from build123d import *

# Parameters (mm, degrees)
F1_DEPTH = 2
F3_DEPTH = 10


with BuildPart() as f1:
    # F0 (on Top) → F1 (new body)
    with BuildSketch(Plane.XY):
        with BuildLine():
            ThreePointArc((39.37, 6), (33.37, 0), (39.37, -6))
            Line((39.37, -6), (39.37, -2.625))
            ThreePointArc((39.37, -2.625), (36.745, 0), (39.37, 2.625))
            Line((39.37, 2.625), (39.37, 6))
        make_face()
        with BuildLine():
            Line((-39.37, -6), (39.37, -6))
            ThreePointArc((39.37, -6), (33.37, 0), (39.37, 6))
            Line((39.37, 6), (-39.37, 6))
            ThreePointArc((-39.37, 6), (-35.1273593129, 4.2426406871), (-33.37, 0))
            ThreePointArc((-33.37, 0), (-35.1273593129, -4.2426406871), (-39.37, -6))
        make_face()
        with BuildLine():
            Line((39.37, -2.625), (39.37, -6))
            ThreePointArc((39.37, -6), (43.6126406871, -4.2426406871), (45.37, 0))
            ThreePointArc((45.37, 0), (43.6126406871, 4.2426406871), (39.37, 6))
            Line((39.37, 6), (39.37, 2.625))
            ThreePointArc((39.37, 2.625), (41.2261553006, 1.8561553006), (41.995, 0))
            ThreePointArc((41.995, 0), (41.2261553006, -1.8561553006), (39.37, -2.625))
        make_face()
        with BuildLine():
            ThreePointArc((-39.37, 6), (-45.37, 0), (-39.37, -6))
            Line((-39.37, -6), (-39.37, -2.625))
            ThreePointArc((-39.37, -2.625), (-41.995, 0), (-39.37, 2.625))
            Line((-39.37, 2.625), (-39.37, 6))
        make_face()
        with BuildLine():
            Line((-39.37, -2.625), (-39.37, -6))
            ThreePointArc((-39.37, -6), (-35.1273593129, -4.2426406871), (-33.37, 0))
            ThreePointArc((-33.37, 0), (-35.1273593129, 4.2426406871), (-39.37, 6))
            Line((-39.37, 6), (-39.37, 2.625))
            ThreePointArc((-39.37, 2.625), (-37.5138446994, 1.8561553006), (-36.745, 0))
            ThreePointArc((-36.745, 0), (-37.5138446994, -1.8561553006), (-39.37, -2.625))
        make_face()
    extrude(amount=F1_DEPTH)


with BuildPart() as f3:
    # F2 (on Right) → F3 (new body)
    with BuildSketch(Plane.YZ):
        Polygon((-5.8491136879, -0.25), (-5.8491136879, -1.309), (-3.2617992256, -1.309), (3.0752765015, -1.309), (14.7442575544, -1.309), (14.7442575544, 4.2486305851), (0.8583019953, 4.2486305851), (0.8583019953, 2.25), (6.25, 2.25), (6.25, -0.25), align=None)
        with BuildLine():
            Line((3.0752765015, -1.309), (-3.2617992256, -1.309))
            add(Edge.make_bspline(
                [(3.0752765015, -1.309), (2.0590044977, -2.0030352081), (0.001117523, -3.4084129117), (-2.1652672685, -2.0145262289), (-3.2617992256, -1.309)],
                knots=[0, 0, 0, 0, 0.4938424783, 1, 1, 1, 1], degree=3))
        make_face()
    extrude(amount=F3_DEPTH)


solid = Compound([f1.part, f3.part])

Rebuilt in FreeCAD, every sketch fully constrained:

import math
import FreeCAD as App
import Part
import Sketcher
from FreeCAD import Vector

doc = App.newDocument("Part")
params = doc.addObject("Spreadsheet::Sheet", "Params")
for row, (alias, value) in enumerate([
    ("sketch1_radius", "6 mm"),
    ("sketch1_width", "78.74 mm"),
    ("pad1_length", "2 mm"),
    ("sketch2_height", "2.5 mm"),
    ("pad2_length", "10 mm"),
], start=1):
    params.set(f"A{row}", alias)
    params.set(f"B{row}", "=" + value)
    params.setAlias(f"B{row}", alias)

body = doc.addObject("PartDesign::Body", "Body")

# Sketch on XY plane
sketch1 = body.newObject("Sketcher::SketchObject", "Sketch")
sketch1.AttachmentSupport = (doc.getObject("XY_Plane"), [""])
sketch1.MapMode = "FlatFace"
sketch1.addGeometry(Part.LineSegment(Vector(39.4, 6, 0), Vector(-39.4, 6, 0)), False)
sketch1.addGeometry(Part.ArcOfCircle(Part.Circle(Vector(-39.4, 0, 0), Vector(0, 0, 1), 6), math.radians(90), math.radians(270)), False)
sketch1.addGeometry(Part.LineSegment(Vector(-39.4, -6, 0), Vector(39.4, -6, 0)), False)
sketch1.addGeometry(Part.ArcOfCircle(Part.Circle(Vector(39.4, 0, 0), Vector(0, 0, 1), 6), math.radians(-90), math.radians(0)), False)
sketch1.addGeometry(Part.ArcOfCircle(Part.Circle(Vector(39.4, 0, 0), Vector(0, 0, 1), 6), math.radians(0), math.radians(90)), False)
sketch1.addGeometry(Part.ArcOfCircle(Part.Circle(Vector(39.4, 0, 0), Vector(0, 0, 1), 2.6), math.radians(90), math.radians(270)), False)
sketch1.addGeometry(Part.ArcOfCircle(Part.Circle(Vector(39.4, 0, 0), Vector(0, 0, 1), 2.6), math.radians(0), math.radians(90)), False)
sketch1.addGeometry(Part.ArcOfCircle(Part.Circle(Vector(39.4, 0, 0), Vector(0, 0, 1), 2.6), math.radians(-90), math.radians(0)), False)
sketch1.addGeometry(Part.ArcOfCircle(Part.Circle(Vector(-39.4, 0, 0), Vector(0, 0, 1), 2.6), math.radians(0), math.radians(90)), False)
sketch1.addGeometry(Part.ArcOfCircle(Part.Circle(Vector(-39.4, 0, 0), Vector(0, 0, 1), 2.6), math.radians(-90), math.radians(0)), False)
sketch1.addGeometry(Part.ArcOfCircle(Part.Circle(Vector(-39.4, 0, 0), Vector(0, 0, 1), 2.6), math.radians(90), math.radians(270)), False)
sketch1.addConstraint(Sketcher.Constraint("Tangent", 0, 2, 1, 1))
sketch1.addConstraint(Sketcher.Constraint("Tangent", 1, 2, 2, 1))
sketch1.addConstraint(Sketcher.Constraint("Tangent", 2, 2, 3, 1))
sketch1.addConstraint(Sketcher.Constraint("Tangent", 3, 2, 4, 1))
sketch1.addConstraint(Sketcher.Constraint("Tangent", 4, 2, 0, 1))
sketch1.addConstraint(Sketcher.Constraint("Tangent", 5, 1, 6, 2))
sketch1.addConstraint(Sketcher.Constraint("Tangent", 6, 1, 7, 2))
sketch1.addConstraint(Sketcher.Constraint("Tangent", 7, 1, 5, 2))
sketch1.addConstraint(Sketcher.Constraint("Tangent", 8, 1, 9, 2))
sketch1.addConstraint(Sketcher.Constraint("Tangent", 9, 1, 10, 2))
sketch1.addConstraint(Sketcher.Constraint("Tangent", 10, 1, 8, 2))
sketch1.addConstraint(Sketcher.Constraint("Horizontal", 0))
sketch1.addConstraint(Sketcher.Constraint("Horizontal", 2))
sketch1.addConstraint(Sketcher.Constraint("Coincident", 5, 3, 3, 3))
sketch1.addConstraint(Sketcher.Constraint("Coincident", 8, 3, 1, 3))
sketch1.addConstraint(Sketcher.Constraint("Equal", 1, 3))
sketch1.addConstraint(Sketcher.Constraint("Equal", 7, 8))
sketch1.addConstraint(Sketcher.Constraint("Symmetric", 1, 3, 3, 3, -1, 1))
sketch1.addConstraint(Sketcher.Constraint("PointOnObject", 3, 2, -1))
sketch1.addConstraint(Sketcher.Constraint("PointOnObject", 6, 1, -1))
sketch1.addConstraint(Sketcher.Constraint("PointOnObject", 8, 1, -1))
sketch1.addConstraint(Sketcher.Constraint("Vertical", 4, 2, 5, 1))
sketch1.addConstraint(Sketcher.Constraint("Vertical", 5, 1, 7, 1))
sketch1.addConstraint(Sketcher.Constraint("Vertical", 1, 2, 9, 1))
sketch1.addConstraint(Sketcher.Constraint("Vertical", 9, 1, 10, 1))
sketch1.addConstraint(Sketcher.Constraint("Radius", 1, 6.0))
sketch1.addConstraint(Sketcher.Constraint("Radius", 5, 2.625))
sketch1.addConstraint(Sketcher.Constraint("DistanceX", 0, 2, 0, 1, 78.74))
sketch1.setExpression("Constraints[25]", "Params.sketch1_radius")
sketch1.setExpression("Constraints[27]", "Params.sketch1_width")
pad1 = body.newObject("PartDesign::Pad", "Pad")
pad1.Profile = sketch1
pad1.setExpression("Length", "Params.pad1_length")
body2 = doc.addObject("PartDesign::Body", "Body001")

# Sketch on YZ plane
sketch2 = body2.newObject("Sketcher::SketchObject", "Sketch001")
sketch2.AttachmentSupport = (doc.getObject("YZ_Plane001"), [""])
sketch2.MapMode = "FlatFace"
sketch2.addGeometry(Part.LineSegment(Vector(-5.849114, -0.25, 0), Vector(-5.849114, -1.309, 0)), False)
sketch2.addGeometry(Part.LineSegment(Vector(-5.849114, -1.309, 0), Vector(-3.261799, -1.309, 0)), False)
sketch2.addGeometry(Part.BSplineCurve([Vector(3.075277, -1.309, 0), Vector(2.059004, -2.003035, 0), Vector(0.001118, -3.408413, 0), Vector(-2.165267, -2.014526, 0), Vector(-3.261799, -1.309, 0)], [4, 1, 4], [0, 0.493842478, 1], False, 3, [1, 1, 1, 1, 1], False), False)
sketch2.addGeometry(Part.LineSegment(Vector(3.075277, -1.309, 0), Vector(14.744258, -1.309, 0)), False)
sketch2.addGeometry(Part.LineSegment(Vector(14.744258, -1.309, 0), Vector(14.744258, 4.248631, 0)), False)
sketch2.addGeometry(Part.LineSegment(Vector(14.744258, 4.248631, 0), Vector(0.858302, 4.248631, 0)), False)
sketch2.addGeometry(Part.LineSegment(Vector(0.858302, 4.248631, 0), Vector(0.858302, 2.25, 0)), False)
sketch2.addGeometry(Part.LineSegment(Vector(0.858302, 2.25, 0), Vector(6.25, 2.25, 0)), False)
sketch2.addGeometry(Part.LineSegment(Vector(6.25, 2.25, 0), Vector(6.25, -0.25, 0)), False)
sketch2.addGeometry(Part.LineSegment(Vector(6.25, -0.25, 0), Vector(-5.849114, -0.25, 0)), False)
sketch2.addConstraint(Sketcher.Constraint("Block", 2))
sketch2.addConstraint(Sketcher.Constraint("Coincident", 0, 2, 1, 1))
sketch2.addConstraint(Sketcher.Constraint("Coincident", 1, 2, 2, 2))
sketch2.addConstraint(Sketcher.Constraint("Coincident", 2, 1, 3, 1))
sketch2.addConstraint(Sketcher.Constraint("Coincident", 3, 2, 4, 1))
sketch2.addConstraint(Sketcher.Constraint("Coincident", 4, 2, 5, 1))
sketch2.addConstraint(Sketcher.Constraint("Coincident", 5, 2, 6, 1))
sketch2.addConstraint(Sketcher.Constraint("Coincident", 6, 2, 7, 1))
sketch2.addConstraint(Sketcher.Constraint("Coincident", 7, 2, 8, 1))
sketch2.addConstraint(Sketcher.Constraint("Coincident", 8, 2, 9, 1))
sketch2.addConstraint(Sketcher.Constraint("Coincident", 9, 2, 0, 1))
sketch2.addConstraint(Sketcher.Constraint("Vertical", 0))
sketch2.addConstraint(Sketcher.Constraint("Horizontal", 1))
sketch2.addConstraint(Sketcher.Constraint("Horizontal", 3))
sketch2.addConstraint(Sketcher.Constraint("Vertical", 4))
sketch2.addConstraint(Sketcher.Constraint("Horizontal", 5))
sketch2.addConstraint(Sketcher.Constraint("Vertical", 6))
sketch2.addConstraint(Sketcher.Constraint("Horizontal", 7))
sketch2.addConstraint(Sketcher.Constraint("Vertical", 8))
sketch2.addConstraint(Sketcher.Constraint("Horizontal", 9))
sketch2.addConstraint(Sketcher.Constraint("DistanceY", 8, 2, 8, 1, 2.5))
sketch2.addConstraint(Sketcher.Constraint("DistanceY", 0, 2, 0, 1, 1.059))
sketch2.addConstraint(Sketcher.Constraint("DistanceX", -1, 1, 7, 2, 6.25))
sketch2.addConstraint(Sketcher.Constraint("DistanceX", 7, 1, 7, 2, 5.391698))
sketch2.addConstraint(Sketcher.Constraint("DistanceX", 3, 1, 3, 2, 11.668981))
sketch2.addConstraint(Sketcher.Constraint("DistanceY", 4, 1, 4, 2, 5.557631))
sketch2.addConstraint(Sketcher.Constraint("DistanceX", 1, 1, 1, 2, 2.587314))
sketch2.setExpression("Constraints[20]", "Params.sketch2_height")
pad2 = body2.newObject("PartDesign::Pad", "Pad001")
pad2.Profile = sketch2
pad2.setExpression("Length", "Params.pad2_length")

doc.recompute()
